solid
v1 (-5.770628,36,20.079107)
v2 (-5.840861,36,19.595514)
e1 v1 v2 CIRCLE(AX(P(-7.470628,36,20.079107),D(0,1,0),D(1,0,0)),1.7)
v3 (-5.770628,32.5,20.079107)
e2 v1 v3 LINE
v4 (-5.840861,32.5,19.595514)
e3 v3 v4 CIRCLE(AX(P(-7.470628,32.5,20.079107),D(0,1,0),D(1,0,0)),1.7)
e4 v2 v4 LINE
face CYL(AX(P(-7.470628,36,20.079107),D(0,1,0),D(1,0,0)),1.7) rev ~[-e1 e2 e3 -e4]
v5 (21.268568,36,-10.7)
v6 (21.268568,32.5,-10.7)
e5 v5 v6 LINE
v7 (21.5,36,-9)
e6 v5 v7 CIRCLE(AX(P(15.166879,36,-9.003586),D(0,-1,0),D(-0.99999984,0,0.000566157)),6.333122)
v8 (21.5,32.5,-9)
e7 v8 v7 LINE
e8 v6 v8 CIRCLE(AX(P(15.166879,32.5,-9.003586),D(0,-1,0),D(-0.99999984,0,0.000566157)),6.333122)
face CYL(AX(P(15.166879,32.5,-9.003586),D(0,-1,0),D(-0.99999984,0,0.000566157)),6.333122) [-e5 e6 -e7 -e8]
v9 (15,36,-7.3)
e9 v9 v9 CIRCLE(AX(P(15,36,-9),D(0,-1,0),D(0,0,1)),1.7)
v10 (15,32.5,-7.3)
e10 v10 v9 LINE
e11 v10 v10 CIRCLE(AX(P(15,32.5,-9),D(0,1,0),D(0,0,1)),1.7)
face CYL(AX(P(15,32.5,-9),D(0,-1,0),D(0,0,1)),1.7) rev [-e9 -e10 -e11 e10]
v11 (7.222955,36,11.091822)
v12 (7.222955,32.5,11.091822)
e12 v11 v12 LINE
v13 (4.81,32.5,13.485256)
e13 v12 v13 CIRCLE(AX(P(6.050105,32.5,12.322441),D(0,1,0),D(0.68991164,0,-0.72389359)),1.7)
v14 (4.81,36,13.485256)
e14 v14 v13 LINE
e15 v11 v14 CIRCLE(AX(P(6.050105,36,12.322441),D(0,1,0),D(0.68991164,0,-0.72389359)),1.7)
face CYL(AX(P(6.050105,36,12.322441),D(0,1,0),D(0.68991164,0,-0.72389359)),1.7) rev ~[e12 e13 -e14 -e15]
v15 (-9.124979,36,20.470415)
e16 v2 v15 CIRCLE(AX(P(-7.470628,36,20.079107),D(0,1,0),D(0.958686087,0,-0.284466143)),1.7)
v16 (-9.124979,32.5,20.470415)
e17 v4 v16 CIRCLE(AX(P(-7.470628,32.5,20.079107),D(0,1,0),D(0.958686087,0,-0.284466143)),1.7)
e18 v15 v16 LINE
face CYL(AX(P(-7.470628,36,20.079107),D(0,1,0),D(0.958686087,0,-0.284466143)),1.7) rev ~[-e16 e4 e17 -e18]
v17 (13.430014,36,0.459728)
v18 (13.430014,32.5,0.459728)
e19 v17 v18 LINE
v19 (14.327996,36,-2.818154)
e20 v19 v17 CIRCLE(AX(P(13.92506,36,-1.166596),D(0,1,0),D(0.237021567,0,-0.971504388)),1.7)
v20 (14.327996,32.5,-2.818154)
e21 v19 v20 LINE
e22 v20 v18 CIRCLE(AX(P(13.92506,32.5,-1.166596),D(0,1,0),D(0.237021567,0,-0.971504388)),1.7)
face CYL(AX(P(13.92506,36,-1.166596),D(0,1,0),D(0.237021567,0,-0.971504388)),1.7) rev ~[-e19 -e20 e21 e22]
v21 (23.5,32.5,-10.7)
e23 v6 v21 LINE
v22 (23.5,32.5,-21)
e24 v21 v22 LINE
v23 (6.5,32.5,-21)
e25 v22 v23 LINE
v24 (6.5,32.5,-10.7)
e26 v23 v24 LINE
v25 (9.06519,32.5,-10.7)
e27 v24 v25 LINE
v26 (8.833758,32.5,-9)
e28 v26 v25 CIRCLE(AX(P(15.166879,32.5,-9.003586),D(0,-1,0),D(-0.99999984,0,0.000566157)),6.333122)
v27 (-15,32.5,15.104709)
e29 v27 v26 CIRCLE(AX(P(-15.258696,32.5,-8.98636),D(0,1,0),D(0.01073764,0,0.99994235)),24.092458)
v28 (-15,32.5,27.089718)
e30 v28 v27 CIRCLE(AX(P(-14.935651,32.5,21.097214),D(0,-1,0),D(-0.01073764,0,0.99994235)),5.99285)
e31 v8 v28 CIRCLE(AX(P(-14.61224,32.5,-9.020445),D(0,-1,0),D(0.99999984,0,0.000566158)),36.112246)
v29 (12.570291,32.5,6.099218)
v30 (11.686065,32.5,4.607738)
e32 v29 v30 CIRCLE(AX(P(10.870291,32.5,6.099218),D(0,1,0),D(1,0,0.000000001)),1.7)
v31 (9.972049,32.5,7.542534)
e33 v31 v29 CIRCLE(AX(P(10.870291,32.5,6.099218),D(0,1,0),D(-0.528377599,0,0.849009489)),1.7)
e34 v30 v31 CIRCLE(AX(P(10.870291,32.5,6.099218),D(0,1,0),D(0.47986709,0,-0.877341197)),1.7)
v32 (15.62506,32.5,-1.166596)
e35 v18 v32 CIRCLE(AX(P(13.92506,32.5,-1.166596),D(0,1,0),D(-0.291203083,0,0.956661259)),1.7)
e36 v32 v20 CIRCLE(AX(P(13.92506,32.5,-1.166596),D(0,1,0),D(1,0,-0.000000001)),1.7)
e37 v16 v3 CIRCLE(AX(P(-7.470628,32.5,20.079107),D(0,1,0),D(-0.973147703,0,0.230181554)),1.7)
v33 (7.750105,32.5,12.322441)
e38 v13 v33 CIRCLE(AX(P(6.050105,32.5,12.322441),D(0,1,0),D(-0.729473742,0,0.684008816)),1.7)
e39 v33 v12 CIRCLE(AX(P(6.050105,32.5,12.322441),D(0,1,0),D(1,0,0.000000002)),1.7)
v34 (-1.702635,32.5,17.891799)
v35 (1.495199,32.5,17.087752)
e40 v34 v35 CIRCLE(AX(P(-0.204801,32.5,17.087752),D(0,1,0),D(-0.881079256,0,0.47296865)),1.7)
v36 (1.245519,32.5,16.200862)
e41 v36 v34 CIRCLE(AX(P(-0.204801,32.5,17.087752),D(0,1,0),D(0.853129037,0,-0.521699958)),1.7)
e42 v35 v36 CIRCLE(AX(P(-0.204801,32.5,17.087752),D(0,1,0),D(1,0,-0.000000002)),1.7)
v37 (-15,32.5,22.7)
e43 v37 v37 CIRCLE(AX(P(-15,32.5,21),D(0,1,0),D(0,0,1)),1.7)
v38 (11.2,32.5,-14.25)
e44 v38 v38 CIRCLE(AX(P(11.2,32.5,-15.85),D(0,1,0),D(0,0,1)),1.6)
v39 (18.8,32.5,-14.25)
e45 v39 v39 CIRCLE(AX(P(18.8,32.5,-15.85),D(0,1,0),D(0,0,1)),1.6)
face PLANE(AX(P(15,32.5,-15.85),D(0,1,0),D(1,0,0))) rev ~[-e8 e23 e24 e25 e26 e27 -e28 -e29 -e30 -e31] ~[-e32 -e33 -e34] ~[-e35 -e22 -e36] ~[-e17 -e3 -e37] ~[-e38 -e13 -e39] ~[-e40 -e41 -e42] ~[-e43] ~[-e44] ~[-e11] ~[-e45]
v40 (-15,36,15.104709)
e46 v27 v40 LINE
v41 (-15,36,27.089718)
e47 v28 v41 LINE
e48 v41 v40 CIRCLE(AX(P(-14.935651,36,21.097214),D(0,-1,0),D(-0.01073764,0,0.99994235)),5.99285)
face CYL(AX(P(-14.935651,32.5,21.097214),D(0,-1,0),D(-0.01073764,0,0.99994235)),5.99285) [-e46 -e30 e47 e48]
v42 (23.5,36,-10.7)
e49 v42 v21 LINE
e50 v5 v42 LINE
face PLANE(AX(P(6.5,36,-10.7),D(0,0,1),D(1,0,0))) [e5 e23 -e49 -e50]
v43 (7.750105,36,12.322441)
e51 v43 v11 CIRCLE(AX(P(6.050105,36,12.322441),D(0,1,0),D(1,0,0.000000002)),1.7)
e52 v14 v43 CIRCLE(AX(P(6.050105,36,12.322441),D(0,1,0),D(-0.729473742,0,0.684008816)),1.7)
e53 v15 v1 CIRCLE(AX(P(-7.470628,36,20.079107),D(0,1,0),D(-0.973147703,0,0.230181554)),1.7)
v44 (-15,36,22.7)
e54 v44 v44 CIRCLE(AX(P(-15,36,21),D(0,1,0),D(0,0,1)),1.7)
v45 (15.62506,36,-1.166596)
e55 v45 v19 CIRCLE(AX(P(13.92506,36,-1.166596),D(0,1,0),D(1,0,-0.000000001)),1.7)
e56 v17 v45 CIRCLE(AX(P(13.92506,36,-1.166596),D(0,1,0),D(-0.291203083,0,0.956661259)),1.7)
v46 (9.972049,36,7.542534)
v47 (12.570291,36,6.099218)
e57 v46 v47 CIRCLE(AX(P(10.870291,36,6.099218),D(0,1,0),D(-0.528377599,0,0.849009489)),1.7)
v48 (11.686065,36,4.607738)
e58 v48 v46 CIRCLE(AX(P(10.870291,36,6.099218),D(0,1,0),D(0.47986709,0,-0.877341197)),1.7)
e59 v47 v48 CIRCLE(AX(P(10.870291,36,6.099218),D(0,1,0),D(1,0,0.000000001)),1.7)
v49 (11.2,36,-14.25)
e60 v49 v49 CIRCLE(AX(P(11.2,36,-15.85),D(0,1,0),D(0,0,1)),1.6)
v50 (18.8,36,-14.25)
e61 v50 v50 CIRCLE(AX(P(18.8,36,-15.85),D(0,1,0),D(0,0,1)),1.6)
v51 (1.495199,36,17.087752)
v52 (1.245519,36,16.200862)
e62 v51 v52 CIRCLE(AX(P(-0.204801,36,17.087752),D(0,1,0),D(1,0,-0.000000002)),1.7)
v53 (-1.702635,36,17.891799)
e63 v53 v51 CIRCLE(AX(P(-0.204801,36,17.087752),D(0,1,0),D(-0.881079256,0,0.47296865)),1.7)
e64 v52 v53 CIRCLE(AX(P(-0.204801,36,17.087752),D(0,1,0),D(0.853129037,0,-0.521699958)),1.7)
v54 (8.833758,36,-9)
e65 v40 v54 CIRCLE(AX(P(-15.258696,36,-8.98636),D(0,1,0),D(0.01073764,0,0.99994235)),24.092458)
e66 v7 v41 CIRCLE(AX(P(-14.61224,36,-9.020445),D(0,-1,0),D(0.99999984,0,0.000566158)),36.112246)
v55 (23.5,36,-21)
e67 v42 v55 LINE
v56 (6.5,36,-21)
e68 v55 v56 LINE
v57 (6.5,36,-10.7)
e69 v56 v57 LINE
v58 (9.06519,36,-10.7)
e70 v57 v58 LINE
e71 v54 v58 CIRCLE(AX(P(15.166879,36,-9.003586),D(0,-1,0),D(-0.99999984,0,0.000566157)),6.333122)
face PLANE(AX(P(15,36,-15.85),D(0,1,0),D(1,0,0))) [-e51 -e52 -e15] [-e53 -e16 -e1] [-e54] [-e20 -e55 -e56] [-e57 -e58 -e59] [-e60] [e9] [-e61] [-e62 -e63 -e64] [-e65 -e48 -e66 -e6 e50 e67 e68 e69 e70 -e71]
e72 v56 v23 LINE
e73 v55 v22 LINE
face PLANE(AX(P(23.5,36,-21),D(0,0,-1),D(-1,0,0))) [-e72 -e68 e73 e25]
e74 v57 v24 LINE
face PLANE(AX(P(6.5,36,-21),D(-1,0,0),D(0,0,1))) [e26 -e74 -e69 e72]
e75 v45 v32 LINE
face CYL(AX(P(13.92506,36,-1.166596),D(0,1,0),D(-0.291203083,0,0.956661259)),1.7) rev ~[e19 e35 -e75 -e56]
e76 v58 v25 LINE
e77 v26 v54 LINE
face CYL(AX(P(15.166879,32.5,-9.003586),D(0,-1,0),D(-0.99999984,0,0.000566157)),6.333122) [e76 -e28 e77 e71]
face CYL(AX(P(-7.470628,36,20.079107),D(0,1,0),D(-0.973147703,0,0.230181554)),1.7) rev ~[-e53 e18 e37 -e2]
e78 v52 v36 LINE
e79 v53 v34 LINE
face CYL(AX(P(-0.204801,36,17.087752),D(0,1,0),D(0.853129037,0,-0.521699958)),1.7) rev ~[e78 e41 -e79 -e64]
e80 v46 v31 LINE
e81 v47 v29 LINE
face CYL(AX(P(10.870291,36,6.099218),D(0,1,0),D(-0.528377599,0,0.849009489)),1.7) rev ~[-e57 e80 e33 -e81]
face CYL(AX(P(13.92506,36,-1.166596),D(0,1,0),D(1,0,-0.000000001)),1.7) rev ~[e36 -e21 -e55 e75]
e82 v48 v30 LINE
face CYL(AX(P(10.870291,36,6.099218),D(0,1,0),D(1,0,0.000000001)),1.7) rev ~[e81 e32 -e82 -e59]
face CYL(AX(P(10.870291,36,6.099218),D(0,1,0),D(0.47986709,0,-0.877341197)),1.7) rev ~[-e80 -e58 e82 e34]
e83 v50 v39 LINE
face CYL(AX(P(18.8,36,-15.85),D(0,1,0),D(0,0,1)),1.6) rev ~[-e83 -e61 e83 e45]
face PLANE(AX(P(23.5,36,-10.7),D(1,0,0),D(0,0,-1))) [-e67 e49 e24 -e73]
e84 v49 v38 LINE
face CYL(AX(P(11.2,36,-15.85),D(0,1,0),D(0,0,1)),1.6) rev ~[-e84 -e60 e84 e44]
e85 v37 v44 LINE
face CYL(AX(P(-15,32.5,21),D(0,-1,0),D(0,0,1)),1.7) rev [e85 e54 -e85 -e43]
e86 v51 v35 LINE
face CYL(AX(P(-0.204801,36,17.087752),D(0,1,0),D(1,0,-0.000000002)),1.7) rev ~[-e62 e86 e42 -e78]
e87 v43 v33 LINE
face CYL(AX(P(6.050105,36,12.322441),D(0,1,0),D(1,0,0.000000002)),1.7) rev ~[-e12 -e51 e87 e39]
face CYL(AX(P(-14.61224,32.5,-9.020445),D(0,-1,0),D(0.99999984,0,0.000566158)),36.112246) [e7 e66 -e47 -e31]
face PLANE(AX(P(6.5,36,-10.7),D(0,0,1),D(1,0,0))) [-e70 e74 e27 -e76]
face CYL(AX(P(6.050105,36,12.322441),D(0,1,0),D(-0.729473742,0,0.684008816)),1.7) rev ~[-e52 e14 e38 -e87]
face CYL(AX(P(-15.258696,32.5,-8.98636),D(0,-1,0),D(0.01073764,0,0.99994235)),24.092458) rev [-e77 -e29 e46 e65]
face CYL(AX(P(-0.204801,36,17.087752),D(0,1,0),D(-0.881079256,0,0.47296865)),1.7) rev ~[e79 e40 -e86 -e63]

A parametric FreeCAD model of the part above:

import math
import FreeCAD as App
import Part
import Sketcher

doc = App.newDocument("Part")
body = doc.addObject("PartDesign::Body", "Body")

# Sketch on XZ plane
sketch1 = body.newObject("Sketcher::SketchObject", "Sketch")
sketch1.AttachmentSupport = (doc.getObject("XZ_Plane"), [""])
sketch1.MapMode = "FlatFace"
sketch1.addGeometry([
    Part.LineSegment(App.Vector(-25, -6, 0), App.Vector(-25, 6, 0)),
    Part.LineSegment(App.Vector(-25, 6, 0), App.Vector(25, 6, 0)),
    Part.LineSegment(App.Vector(25, 6, 0), App.Vector(25, -6, 0)),
    Part.LineSegment(App.Vector(25, -6, 0), App.Vector(-25, -6, 0)),
], False)
sketch1.addConstraint([
    Sketcher.Constraint("Coincident", 0, 2, 1, 1),
    Sketcher.Constraint("Coincident", 1, 2, 2, 1),
    Sketcher.Constraint("Coincident", 2, 2, 3, 1),
    Sketcher.Constraint("Coincident", 3, 2, 0, 1),
    Sketcher.Constraint("Vertical", 0),
    Sketcher.Constraint("Horizontal", 1),
    Sketcher.Constraint("Vertical", 2),
    Sketcher.Constraint("Horizontal", 3),
    Sketcher.Constraint("Symmetric", 0, 2, 2, 2, -1, 1),
    Sketcher.Constraint("DistanceX", 1, 1, 1, 2, 50.0),
    Sketcher.Constraint("DistanceY", 0, 1, 0, 2, 11.0),
])
pad1 = body.newObject("PartDesign::Pad", "Pad")
pad1.Profile = sketch1
pad1.Length = 22.5
pad1.Reversed = True

# Sketch on XZ plane
sketch2 = body.newObject("Sketcher::SketchObject", "Sketch001")
sketch2.AttachmentSupport = (doc.getObject("XZ_Plane"), [""])
sketch2.MapMode = "FlatFace"
sketch2.AttachmentOffset = App.Placement(App.Vector(0, 0, -22.5), App.Rotation())
sketch2.addGeometry([
    Part.LineSegment(App.Vector(-23, -4, 0), App.Vector(-23, 4, 0)),
    Part.LineSegment(App.Vector(-23, 4, 0), App.Vector(23, 4, 0)),
    Part.LineSegment(App.Vector(23, 4, 0), App.Vector(23, -4, 0)),
    Part.LineSegment(App.Vector(23, -4, 0), App.Vector(-23, -4, 0)),
], False)
sketch2.addConstraint([
    Sketcher.Constraint("Coincident", 0, 2, 1, 1),
    Sketcher.Constraint("Coincident", 1, 2, 2, 1),
    Sketcher.Constraint("Coincident", 2, 2, 3, 1),
    Sketcher.Constraint("Coincident", 3, 2, 0, 1),
    Sketcher.Constraint("Vertical", 0),
    Sketcher.Constraint("Horizontal", 1),
    Sketcher.Constraint("Vertical", 2),
    Sketcher.Constraint("Horizontal", 3),
    Sketcher.Constraint("Symmetric", 0, 2, 2, 2, -1, 1),
    Sketcher.Constraint("DistanceX", 1, 1, 1, 2, 46.0),
    Sketcher.Constraint("DistanceY", 0, 1, 0, 2, 7.0),
])
pocket1 = body.newObject("PartDesign::Pocket", "Pocket")
pocket1.Profile = sketch2
pocket1.Length = 20.5
pocket1.Reversed = True

# Sketch on XZ plane
sketch3 = body.newObject("Sketcher::SketchObject", "Sketch002")
sketch3.AttachmentSupport = (doc.getObject("XZ_Plane"), [""])
sketch3.MapMode = "FlatFace"
sketch3.AttachmentOffset = App.Placement(App.Vector(0, 0, -22.5), App.Rotation())
sketch3.addGeometry([
    Part.LineSegment(App.Vector(-5.5, -5.5, 0), App.Vector(-5.5, -3.5, 0)),
    Part.LineSegment(App.Vector(-5.5, -3.5, 0), App.Vector(5.5, -3.5, 0)),
    Part.LineSegment(App.Vector(5.5, -3.5, 0), App.Vector(5.5, -5.5, 0)),
    Part.LineSegment(App.Vector(5.5, -5.5, 0), App.Vector(-5.5, -5.5, 0)),
], False)
sketch3.addConstraint([
    Sketcher.Constraint("Coincident", 0, 2, 1, 1),
    Sketcher.Constraint("Coincident", 1, 2, 2, 1),
    Sketcher.Constraint("Coincident", 2, 2, 3, 1),
    Sketcher.Constraint("Coincident", 3, 2, 0, 1),
    Sketcher.Constraint("Vertical", 0),
    Sketcher.Constraint("Horizontal", 1),
    Sketcher.Constraint("Vertical", 2),
    Sketcher.Constraint("Horizontal", 3),
    Sketcher.Constraint("DistanceY", 0, 1, 0, 2, 2.0),
    Sketcher.Constraint("DistanceY", 0, 2, -1, 1, 3.5),
    Sketcher.Constraint("DistanceX", 1, 1, 1, 2, 10.979161),
    Sketcher.Constraint("DistanceX", 0, 2, -1, 1, 5.48958),
])
pocket2 = body.newObject("PartDesign::Pocket", "Pocket001")
pocket2.Profile = sketch3
pocket2.Length = 4
pocket2.Reversed = True

# Sketch on XY plane
sketch4 = body.newObject("Sketcher::SketchObject", "Sketch003")
sketch4.AttachmentSupport = (doc.getObject("XY_Plane"), [""])
sketch4.MapMode = "FlatFace"
sketch4.AttachmentOffset = App.Placement(App.Vector(0, 0, 5.5), App.Rotation())
sketch4.addGeometry([
    Part.LineSegment(App.Vector(-4, 22, 0), App.Vector(-21, 22, 0)),  # 0
    Part.LineSegment(App.Vector(-21, 22, 0), App.Vector(-21, 12, 0)),  # 1
    Part.ArcOfCircle(Part.Circle(App.Vector(-13, 12, 0), App.Vector(0, 0, 1), 8), math.radians(180), math.radians(360)),  # 2
    Part.LineSegment(App.Vector(-4, 12, 0), App.Vector(-4, 22, 0)),  # 3
    Part.LineSegment(App.Vector(21, 22, 0), App.Vector(4, 22, 0)),  # 4
    Part.LineSegment(App.Vector(4, 22, 0), App.Vector(4, 12, 0)),  # 5
    Part.ArcOfCircle(Part.Circle(App.Vector(13, 12, 0), App.Vector(0, 0, 1), 8), math.radians(180), math.radians(360)),  # 6
    Part.LineSegment(App.Vector(21, 12, 0), App.Vector(21, 22, 0)),  # 7
], False)
sketch4.addConstraint([
    Sketcher.Constraint("Coincident", 0, 2, 1, 1),
    Sketcher.Constraint("Tangent", 1, 2, 2, 1),
    Sketcher.Constraint("Tangent", 2, 2, 3, 1),
    Sketcher.Constraint("Coincident", 3, 2, 0, 1),
    Sketcher.Constraint("Coincident", 4, 2, 5, 1),
    Sketcher.Constraint("Tangent", 5, 2, 6, 1),
    Sketcher.Constraint("Tangent", 6, 2, 7, 1),
    Sketcher.Constraint("Coincident", 7, 2, 4, 1),
    Sketcher.Constraint("Horizontal", 0),
    Sketcher.Constraint("Vertical", 1),
    Sketcher.Constraint("Vertical", 3),
    Sketcher.Constraint("Horizontal", 4),
    Sketcher.Constraint("Vertical", 5),
    Sketcher.Constraint("Vertical", 7),
    Sketcher.Constraint("Equal", 2, 6),
    Sketcher.Constraint("Symmetric", 2, 3, 6, 3, -2),
    Sketcher.Constraint("Horizontal", 3, 2, 4, 2),
    Sketcher.Constraint("Radius", 2, 8.25),
    Sketcher.Constraint("DistanceX", 0, 2, -1, 1, 21.0),
    Sketcher.Constraint("DistanceY", 1, 2, 1, 1, 10.75),
    Sketcher.Constraint("DistanceY", -1, 1, 0, 2, 22.5),
])
pocket3 = body.newObject("PartDesign::Pocket", "Pocket002")
pocket3.Profile = sketch4
pocket3.Length = 4

# Sketch on XY plane
sketch5 = body.newObject("Sketcher::SketchObject", "Sketch004")
sketch5.AttachmentSupport = (doc.getObject("XY_Plane"), [""])
sketch5.MapMode = "FlatFace"
sketch5.AttachmentOffset = App.Placement(App.Vector(0, 0, -5.5), App.Rotation())
sketch5.addGeometry([
    Part.LineSegment(App.Vector(25, 4, 0), App.Vector(25, 0, 0)),
    Part.LineSegment(App.Vector(25, 0, 0), App.Vector(-25, 0, 0)),
    Part.LineSegment(App.Vector(-25, 0, 0), App.Vector(-25, 4, 0)),
    Part.LineSegment(App.Vector(-25, 4, 0), App.Vector(25, 4, 0)),
], False)
sketch5.addConstraint([
    Sketcher.Constraint("Coincident", 0, 2, 1, 1),
    Sketcher.Constraint("Coincident", 1, 2, 2, 1),
    Sketcher.Constraint("Coincident", 2, 2, 3, 1),
    Sketcher.Constraint("Coincident", 3, 2, 0, 1),
    Sketcher.Constraint("Vertical", 0),
    Sketcher.Constraint("Horizontal", 1),
    Sketcher.Constraint("Vertical", 2),
    Sketcher.Constraint("Horizontal", 3),
    Sketcher.Constraint("Symmetric", 0, 2, 1, 2, -1, 1),
    Sketcher.Constraint("DistanceX", 1, 2, 1, 1, 50.0),
    Sketcher.Constraint("DistanceY", 0, 2, 0, 1, 4.0),
])
pad2 = body.newObject("PartDesign::Pad", "Pad001")
pad2.Profile = sketch5
pad2.Length = 7
pad2.Reversed = True

# Sketch on XZ plane
sketch6 = body.newObject("Sketcher::SketchObject", "Sketch005")
sketch6.AttachmentSupport = (doc.getObject("XZ_Plane"), [""])
sketch6.MapMode = "FlatFace"
sketch6.AttachmentOffset = App.Placement(App.Vector(0, 0, -4), App.Rotation())
sketch6.addGeometry([
    Part.Circle(App.Vector(10, -9, 0), App.Vector(0, 0, 1), 1.5),  # 0
    Part.Circle(App.Vector(5, -9, 0), App.Vector(0, 0, 1), 1.5),  # 1
    Part.Circle(App.Vector(20, -9, 0), App.Vector(0, 0, 1), 1.5),  # 2
    Part.Circle(App.Vector(15, -9, 0), App.Vector(0, 0, 1), 1.5),  # 3
    Part.Circle(App.Vector(0, -9, 0), App.Vector(0, 0, 1), 1.5),  # 4
    Part.Circle(App.Vector(-5, -9, 0), App.Vector(0, 0, 1), 1.5),  # 5
    Part.Circle(App.Vector(-10, -9, 0), App.Vector(0, 0, 1), 1.5),  # 6
    Part.Circle(App.Vector(-15, -9, 0), App.Vector(0, 0, 1), 1.5),  # 7
    Part.Circle(App.Vector(-20, -9, 0), App.Vector(0, 0, 1), 1.5),  # 8
], False)
sketch6.addConstraint([
    Sketcher.Constraint("Equal", 0, 1),
    Sketcher.Constraint("Equal", 1, 2),
    Sketcher.Constraint("Equal", 2, 3),
    Sketcher.Constraint("Equal", 3, 4),
    Sketcher.Constraint("Equal", 4, 5),
    Sketcher.Constraint("Equal", 5, 6),
    Sketcher.Constraint("Equal", 6, 7),
    Sketcher.Constraint("Equal", 7, 8),
    Sketcher.Constraint("Symmetric", 1, 3, 5, 3, -2),
    Sketcher.Constraint("Symmetric", 0, 3, 6, 3, -2),
    Sketcher.Constraint("Symmetric", 3, 3, 7, 3, -2),
    Sketcher.Constraint("Symmetric", 2, 3, 8, 3, -2),
    Sketcher.Constraint("PointOnObject", 4, 3, -2),
    Sketcher.Constraint("Horizontal", 0, 3, 1, 3),
    Sketcher.Constraint("Horizontal", 1, 3, 2, 3),
    Sketcher.Constraint("Horizontal", 2, 3, 3, 3),
    Sketcher.Constraint("Horizontal", 3, 3, 4, 3),
    Sketcher.Constraint("Diameter", 0, 3.0),
    Sketcher.Constraint("DistanceX", -1, 1, 0, 3, 10.0),
    Sketcher.Constraint("DistanceY", 0, 3, -1, 1, 9.0),
    Sketcher.Constraint("DistanceX", -1, 1, 1, 3, 5.0),
    Sketcher.Constraint("DistanceX", -1, 1, 2, 3, 20.0),
    Sketcher.Constraint("DistanceX", -1, 1, 3, 3, 15.0),
])
pocket4 = body.newObject("PartDesign::Pocket", "Pocket003")
pocket4.Profile = sketch6
pocket4.Length = 7
pocket4.Reversed = True

# Sketch on XZ plane
sketch7 = body.newObject("Sketcher::SketchObject", "Sketch006")
sketch7.AttachmentSupport = (doc.getObject("XZ_Plane"), [""])
sketch7.MapMode = "FlatFace"
sketch7.AttachmentOffset = App.Placement(App.Vector(0, 0, -22.5), App.Rotation())
sketch7.addGeometry([
    Part.LineSegment(App.Vector(-4.5, 3.5, 0), App.Vector(-4.5, 7.5, 0)),
    Part.LineSegment(App.Vector(-4.5, 7.5, 0), App.Vector(4.5, 7.5, 0)),
    Part.LineSegment(App.Vector(4.5, 7.5, 0), App.Vector(4.5, 3.5, 0)),
    Part.LineSegment(App.Vector(4.5, 3.5, 0), App.Vector(-4.5, 3.5, 0)),
], False)
sketch7.addConstraint([
    Sketcher.Constraint("Coincident", 0, 2, 1, 1),
    Sketcher.Constraint("Coincident", 1, 2, 2, 1),
    Sketcher.Constraint("Coincident", 2, 2, 3, 1),
    Sketcher.Constraint("Coincident", 3, 2, 0, 1),
    Sketcher.Constraint("Vertical", 0),
    Sketcher.Constraint("Horizontal", 1),
    Sketcher.Constraint("Vertical", 2),
    Sketcher.Constraint("Horizontal", 3),
    Sketcher.Constraint("DistanceX", 1, 1, 1, 2, 9.0),
    Sketcher.Constraint("DistanceY", 0, 1, 0, 2, 4.0),
    Sketcher.Constraint("DistanceX", 0, 2, -1, 1, 4.5),
    Sketcher.Constraint("DistanceY", -1, 1, 0, 2, 7.5),
])
pad3 = body.newObject("PartDesign::Pad", "Pad002")
pad3.Profile = sketch7
pad3.Length = 22.5

# Sketch on XZ plane
sketch8 = body.newObject("Sketcher::SketchObject", "Sketch007")
sketch8.AttachmentSupport = (doc.getObject("XZ_Plane"), [""])
sketch8.MapMode = "FlatFace"
sketch8.AttachmentOffset = App.Placement(App.Vector(0, 0, -32.5), App.Rotation())
sketch8.addGeometry([
    Part.LineSegment(App.Vector(-34, -30, 0), App.Vector(-34, 37, 0)),
    Part.LineSegment(App.Vector(-34, 37, 0), App.Vector(34, 37, 0)),
    Part.LineSegment(App.Vector(34, 37, 0), App.Vector(34, -30, 0)),
    Part.LineSegment(App.Vector(34, -30, 0), App.Vector(-34, -30, 0)),
], False)
sketch8.addConstraint([
    Sketcher.Constraint("Coincident", 0, 2, 1, 1),
    Sketcher.Constraint("Coincident", 1, 2, 2, 1),
    Sketcher.Constraint("Coincident", 2, 2, 3, 1),
    Sketcher.Constraint("Coincident", 3, 2, 0, 1),
    Sketcher.Constraint("Vertical", 0),
    Sketcher.Constraint("Horizontal", 1),
    Sketcher.Constraint("Vertical", 2),
    Sketcher.Constraint("Horizontal", 3),
    Sketcher.Constraint("DistanceX", 1, 1, 1, 2, 68.510384),
    Sketcher.Constraint("DistanceY", 0, 1, 0, 2, 66.833312),
    Sketcher.Constraint("DistanceX", 0, 2, -1, 1, 34.245996),
    Sketcher.Constraint("DistanceY", -1, 1, 0, 2, 37.024245),
])
pocket5 = body.newObject("PartDesign::Pocket", "Pocket004")
pocket5.Profile = sketch8
pocket5.Type = "ThroughAll"
pocket5.Reversed = True
body2 = doc.addObject("PartDesign::Body", "Body001")

# Sketch on XZ plane
sketch9 = body2.newObject("Sketcher::SketchObject", "Sketch008")
sketch9.AttachmentSupport = (doc.getObject("XZ_Plane001"), [""])
sketch9.MapMode = "FlatFace"
sketch9.AttachmentOffset = App.Placement(App.Vector(0, 0, -32.5), App.Rotation())
sketch9.addGeometry([
    Part.ArcOfCircle(Part.Circle(App.Vector(15.2, -9, 0), App.Vector(0, 0, 1), 6.3), math.radians(180), math.radians(360)),  # 0
    Part.ArcOfCircle(Part.Circle(App.Vector(-15.3, -9, 0), App.Vector(0, 0, 1), 24.1), math.radians(0), math.radians(89)),  # 1
    Part.ArcOfCircle(Part.Circle(App.Vector(-14.9, 21.1, 0), App.Vector(0, 0, 1), 6), math.radians(91), math.radians(269)),  # 2
    Part.ArcOfCircle(Part.Circle(App.Vector(-14.6, -9, 0), App.Vector(0, 0, 1), 36.1), math.radians(0), math.radians(91)),  # 3
    Part.Circle(App.Vector(-15, 21, 0), App.Vector(0, 0, 1), 1.7),  # 4
    Part.Circle(App.Vector(15, -9, 0), App.Vector(0, 0, 1), 1.7),  # 5
], False)
sketch9.addConstraint([
    Sketcher.Constraint("Tangent", 0, 1, 1, 1),
    Sketcher.Constraint("Tangent", 1, 2, 2, 2),
    Sketcher.Constraint("Tangent", 2, 1, 3, 2),
    Sketcher.Constraint("Tangent", 3, 1, 0, 2),
    Sketcher.Constraint("Equal", 4, 5),
    Sketcher.Constraint("Horizontal", 5, 3, 0, 1),
    Sketcher.Constraint("Horizontal", 0, 1, 3, 1),
    Sketcher.Constraint("Vertical", 4, 3, 1, 2),
    Sketcher.Constraint("Vertical", 1, 2, 2, 1),
    Sketcher.Constraint("Diameter", 4, 3.4),
    Sketcher.Constraint("DistanceX", 4, 3, -1, 1, 15.0),
    Sketcher.Constraint("DistanceY", -1, 1, 4, 3, 21.0),
    Sketcher.Constraint("DistanceX", -1, 1, 5, 3, 15.0),
    Sketcher.Constraint("DistanceY", 5, 3, -1, 1, 9.0),
    Sketcher.Constraint("DistanceX", -1, 1, 3, 1, 21.5),
    Sketcher.Constraint("Radius", 0, 6.333122),
    Sketcher.Constraint("Radius", 1, 24.092458),
    Sketcher.Constraint("Radius", 2, 5.99285),
])
pad4 = body2.newObject("PartDesign::Pad", "Pad003")
pad4.Profile = sketch9
pad4.Length = 3.5
pad4.Reversed = True

# Sketch on XZ plane
sketch10 = body2.newObject("Sketcher::SketchObject", "Sketch009")
sketch10.AttachmentSupport = (doc.getObject("XZ_Plane001"), [""])
sketch10.MapMode = "FlatFace"
sketch10.AttachmentOffset = App.Placement(App.Vector(0, 0, -36), App.Rotation())
sketch10.addGeometry([
    Part.ArcOfCircle(Part.Circle(App.Vector(-0.2, 17.09, 0), App.Vector(0, 0, 1), 1.7), math.radians(152), math.radians(329)),  # 0
    Part.ArcOfCircle(Part.Circle(App.Vector(-0.2, 17.09, 0), App.Vector(0, 0, 1), 1.7), math.radians(0), math.radians(152)),  # 1
    Part.ArcOfCircle(Part.Circle(App.Vector(-0.2, 17.09, 0), App.Vector(0, 0, 1), 1.7), math.radians(-31), math.radians(0)),  # 2
    Part.ArcOfCircle(Part.Circle(App.Vector(-7.47, 20.08, 0), App.Vector(0, 0, 1), 1.7), math.radians(167), math.radians(343)),  # 3
    Part.ArcOfCircle(Part.Circle(App.Vector(-7.47, 20.08, 0), App.Vector(0, 0, 1), 1.7), math.radians(0), math.radians(167)),  # 4
    Part.ArcOfCircle(Part.Circle(App.Vector(-7.47, 20.08, 0), App.Vector(0, 0, 1), 1.7), math.radians(-16.53), math.radians(0)),  # 5
    Part.ArcOfCircle(Part.Circle(App.Vector(6.05, 12.32, 0), App.Vector(0, 0, 1), 1.7), math.radians(137), math.radians(314)),  # 6
    Part.ArcOfCircle(Part.Circle(App.Vector(6.05, 12.32, 0), App.Vector(0, 0, 1), 1.7), math.radians(0), math.radians(137)),  # 7
    Part.ArcOfCircle(Part.Circle(App.Vector(6.05, 12.32, 0), App.Vector(0, 0, 1), 1.7), math.radians(-46), math.radians(0)),  # 8
    Part.ArcOfCircle(Part.Circle(App.Vector(10.87, 6.1, 0), App.Vector(0, 0, 1), 1.7), math.radians(122), math.radians(299)),  # 9
    Part.ArcOfCircle(Part.Circle(App.Vector(10.87, 6.1, 0), App.Vector(0, 0, 1), 1.7), math.radians(0), math.radians(122)),  # 10
    Part.ArcOfCircle(Part.Circle(App.Vector(10.87, 6.1, 0), App.Vector(0, 0, 1), 1.7), math.radians(-61), math.radians(0)),  # 11
    Part.ArcOfCircle(Part.Circle(App.Vector(13.93, -1.17, 0), App.Vector(0, 0, 1), 1.7), math.radians(107), math.radians(284)),  # 12
    Part.ArcOfCircle(Part.Circle(App.Vector(13.93, -1.17, 0), App.Vector(0, 0, 1), 1.7), math.radians(0), math.radians(107)),  # 13
    Part.ArcOfCircle(Part.Circle(App.Vector(13.93, -1.17, 0), App.Vector(0, 0, 1), 1.7), math.radians(-76), math.radians(0)),  # 14
], False)
sketch10.addConstraint([
    Sketcher.Constraint("Tangent", 0, 1, 1, 2),
    Sketcher.Constraint("Tangent", 1, 1, 2, 2),
    Sketcher.Constraint("Tangent", 2, 1, 0, 2),
    Sketcher.Constraint("Tangent", 3, 1, 4, 2),
    Sketcher.Constraint("Tangent", 4, 1, 5, 2),
    Sketcher.Constraint("Tangent", 5, 1, 3, 2),
    Sketcher.Constraint("Tangent", 6, 1, 7, 2),
    Sketcher.Constraint("Tangent", 7, 1, 8, 2),
    Sketcher.Constraint("Tangent", 8, 1, 6, 2),
    Sketcher.Constraint("Tangent", 9, 1, 10, 2),
    Sketcher.Constraint("Tangent", 10, 1, 11, 2),
    Sketcher.Constraint("Tangent", 11, 1, 9, 2),
    Sketcher.Constraint("Tangent", 12, 1, 13, 2),
    Sketcher.Constraint("Tangent", 13, 1, 14, 2),
    Sketcher.Constraint("Tangent", 14, 1, 12, 2),
    Sketcher.Constraint("Equal", 2, 3),
    Sketcher.Constraint("Equal", 5, 6),
    Sketcher.Constraint("Equal", 8, 9),
    Sketcher.Constraint("Equal", 11, 12),
    Sketcher.Constraint("Horizontal", 2, 3, 1, 1),
    Sketcher.Constraint("Horizontal", 5, 3, 4, 1),
    Sketcher.Constraint("Horizontal", 8, 3, 7, 1),
    Sketcher.Constraint("Horizontal", 11, 3, 10, 1),
    Sketcher.Constraint("Horizontal", 14, 3, 13, 1),
    Sketcher.Constraint("Radius", 0, 1.7),
    Sketcher.Constraint("DistanceX", -1, 1, 6, 1, 4.81),
    Sketcher.Constraint("DistanceX", 0, 3, -1, 1, 0.204801),
    Sketcher.Constraint("DistanceY", -1, 1, 0, 1, 17.891799),
    Sketcher.Constraint("DistanceY", 5, 1, 3, 1, 0.874901),
    Sketcher.Constraint("DistanceY", -1, 1, 6, 3, 12.322441),
    Sketcher.Constraint("DistanceX", -1, 1, 9, 3, 10.870291),
    Sketcher.Constraint("DistanceY", -1, 1, 9, 3, 6.099218),
    Sketcher.Constraint("DistanceX", -1, 1, 12, 3, 13.92506),
    Sketcher.Constraint("DistanceX", -1, 1, 2, 1, 1.245519),
    Sketcher.Constraint("DistanceX", 3, 1, -1, 1, 9.124979),
    Sketcher.Constraint("DistanceX", 5, 1, -1, 1, 5.840861),
    Sketcher.Constraint("DistanceX", -1, 1, 9, 1, 9.972049),
    Sketcher.Constraint("DistanceY", -1, 1, 12, 1, 0.459728),
    Sketcher.Constraint("DistanceY", 6, 3, 0, 3, 4.765311),
    Sketcher.Constraint("DistanceX", 8, 1, 7, 1, 0.52715),
    Sketcher.Constraint("DistanceY", 11, 1, 11, 3, 1.49148),
    Sketcher.Constraint("DistanceX", 11, 1, 12, 1, 1.743949),
    Sketcher.Constraint("DistanceX", 12, 1, 14, 1, 0.897982),
    Sketcher.Constraint("DistanceY", -1, 1, 3, 3, 20.079107),
    Sketcher.Constraint("DistanceX", -1, 1, 6, 3, 6.050105),
])
pocket6 = body2.newObject("PartDesign::Pocket", "Pocket005")
pocket6.Profile = sketch10
pocket6.Type = "ThroughAll"
pocket6.Reversed = True

# Sketch on XZ plane
sketch11 = body2.newObject("Sketcher::SketchObject", "Sketch010")
sketch11.AttachmentSupport = (doc.getObject("XZ_Plane001"), [""])
sketch11.MapMode = "FlatFace"
sketch11.AttachmentOffset = App.Placement(App.Vector(0, 0, -36), App.Rotation())
sketch11.addGeometry([
    Part.LineSegment(App.Vector(24, -11, 0), App.Vector(24, -21, 0)),
    Part.LineSegment(App.Vector(24, -21, 0), App.Vector(6, -21, 0)),
    Part.LineSegment(App.Vector(6, -21, 0), App.Vector(6, -11, 0)),
    Part.LineSegment(App.Vector(6, -11, 0), App.Vector(24, -11, 0)),
], False)
sketch11.addConstraint([
    Sketcher.Constraint("Coincident", 0, 2, 1, 1),
    Sketcher.Constraint("Coincident", 1, 2, 2, 1),
    Sketcher.Constraint("Coincident", 2, 2, 3, 1),
    Sketcher.Constraint("Coincident", 3, 2, 0, 1),
    Sketcher.Constraint("Vertical", 0),
    Sketcher.Constraint("Horizontal", 1),
    Sketcher.Constraint("Vertical", 2),
    Sketcher.Constraint("Horizontal", 3),
    Sketcher.Constraint("DistanceX", 1, 2, 1, 1, 17.0),
    Sketcher.Constraint("DistanceY", 0, 2, 0, 1, 10.3),
    Sketcher.Constraint("DistanceY", 0, 2, -1, 1, 21.0),
    Sketcher.Constraint("DistanceX", -1, 1, 0, 2, 23.5),
])
pad5 = body2.newObject("PartDesign::Pad", "Pad004")
pad5.Profile = sketch11
pad5.Length = 3.5

# Sketch on XZ plane
sketch12 = body2.newObject("Sketcher::SketchObject", "Sketch011")
sketch12.AttachmentSupport = (doc.getObject("XZ_Plane001"), [""])
sketch12.MapMode = "FlatFace"
sketch12.AttachmentOffset = App.Placement(App.Vector(0, 0, -36), App.Rotation())
sketch12.addGeometry([
    Part.Circle(App.Vector(11.2, -15.8, 0), App.Vector(0, 0, 1), 1.6),
    Part.Circle(App.Vector(18.8, -15.8, 0), App.Vector(0, 0, 1), 1.6),
], False)
sketch12.addConstraint([
    Sketcher.Constraint("Equal", 0, 1),
    Sketcher.Constraint("Horizontal", 0, 3, 1, 3),
    Sketcher.Constraint("Diameter", 0, 3.2),
    Sketcher.Constraint("DistanceX", -1, 1, 0, 3, 11.2),
    Sketcher.Constraint("DistanceX", -1, 1, 1, 3, 18.8),
    Sketcher.Constraint("DistanceY", 0, 3, -1, 1, 15.85),
])
pocket7 = body2.newObject("PartDesign::Pocket", "Pocket006")
pocket7.Profile = sketch12
pocket7.Length = 3.5
pocket7.Reversed = True

doc.recompute()
